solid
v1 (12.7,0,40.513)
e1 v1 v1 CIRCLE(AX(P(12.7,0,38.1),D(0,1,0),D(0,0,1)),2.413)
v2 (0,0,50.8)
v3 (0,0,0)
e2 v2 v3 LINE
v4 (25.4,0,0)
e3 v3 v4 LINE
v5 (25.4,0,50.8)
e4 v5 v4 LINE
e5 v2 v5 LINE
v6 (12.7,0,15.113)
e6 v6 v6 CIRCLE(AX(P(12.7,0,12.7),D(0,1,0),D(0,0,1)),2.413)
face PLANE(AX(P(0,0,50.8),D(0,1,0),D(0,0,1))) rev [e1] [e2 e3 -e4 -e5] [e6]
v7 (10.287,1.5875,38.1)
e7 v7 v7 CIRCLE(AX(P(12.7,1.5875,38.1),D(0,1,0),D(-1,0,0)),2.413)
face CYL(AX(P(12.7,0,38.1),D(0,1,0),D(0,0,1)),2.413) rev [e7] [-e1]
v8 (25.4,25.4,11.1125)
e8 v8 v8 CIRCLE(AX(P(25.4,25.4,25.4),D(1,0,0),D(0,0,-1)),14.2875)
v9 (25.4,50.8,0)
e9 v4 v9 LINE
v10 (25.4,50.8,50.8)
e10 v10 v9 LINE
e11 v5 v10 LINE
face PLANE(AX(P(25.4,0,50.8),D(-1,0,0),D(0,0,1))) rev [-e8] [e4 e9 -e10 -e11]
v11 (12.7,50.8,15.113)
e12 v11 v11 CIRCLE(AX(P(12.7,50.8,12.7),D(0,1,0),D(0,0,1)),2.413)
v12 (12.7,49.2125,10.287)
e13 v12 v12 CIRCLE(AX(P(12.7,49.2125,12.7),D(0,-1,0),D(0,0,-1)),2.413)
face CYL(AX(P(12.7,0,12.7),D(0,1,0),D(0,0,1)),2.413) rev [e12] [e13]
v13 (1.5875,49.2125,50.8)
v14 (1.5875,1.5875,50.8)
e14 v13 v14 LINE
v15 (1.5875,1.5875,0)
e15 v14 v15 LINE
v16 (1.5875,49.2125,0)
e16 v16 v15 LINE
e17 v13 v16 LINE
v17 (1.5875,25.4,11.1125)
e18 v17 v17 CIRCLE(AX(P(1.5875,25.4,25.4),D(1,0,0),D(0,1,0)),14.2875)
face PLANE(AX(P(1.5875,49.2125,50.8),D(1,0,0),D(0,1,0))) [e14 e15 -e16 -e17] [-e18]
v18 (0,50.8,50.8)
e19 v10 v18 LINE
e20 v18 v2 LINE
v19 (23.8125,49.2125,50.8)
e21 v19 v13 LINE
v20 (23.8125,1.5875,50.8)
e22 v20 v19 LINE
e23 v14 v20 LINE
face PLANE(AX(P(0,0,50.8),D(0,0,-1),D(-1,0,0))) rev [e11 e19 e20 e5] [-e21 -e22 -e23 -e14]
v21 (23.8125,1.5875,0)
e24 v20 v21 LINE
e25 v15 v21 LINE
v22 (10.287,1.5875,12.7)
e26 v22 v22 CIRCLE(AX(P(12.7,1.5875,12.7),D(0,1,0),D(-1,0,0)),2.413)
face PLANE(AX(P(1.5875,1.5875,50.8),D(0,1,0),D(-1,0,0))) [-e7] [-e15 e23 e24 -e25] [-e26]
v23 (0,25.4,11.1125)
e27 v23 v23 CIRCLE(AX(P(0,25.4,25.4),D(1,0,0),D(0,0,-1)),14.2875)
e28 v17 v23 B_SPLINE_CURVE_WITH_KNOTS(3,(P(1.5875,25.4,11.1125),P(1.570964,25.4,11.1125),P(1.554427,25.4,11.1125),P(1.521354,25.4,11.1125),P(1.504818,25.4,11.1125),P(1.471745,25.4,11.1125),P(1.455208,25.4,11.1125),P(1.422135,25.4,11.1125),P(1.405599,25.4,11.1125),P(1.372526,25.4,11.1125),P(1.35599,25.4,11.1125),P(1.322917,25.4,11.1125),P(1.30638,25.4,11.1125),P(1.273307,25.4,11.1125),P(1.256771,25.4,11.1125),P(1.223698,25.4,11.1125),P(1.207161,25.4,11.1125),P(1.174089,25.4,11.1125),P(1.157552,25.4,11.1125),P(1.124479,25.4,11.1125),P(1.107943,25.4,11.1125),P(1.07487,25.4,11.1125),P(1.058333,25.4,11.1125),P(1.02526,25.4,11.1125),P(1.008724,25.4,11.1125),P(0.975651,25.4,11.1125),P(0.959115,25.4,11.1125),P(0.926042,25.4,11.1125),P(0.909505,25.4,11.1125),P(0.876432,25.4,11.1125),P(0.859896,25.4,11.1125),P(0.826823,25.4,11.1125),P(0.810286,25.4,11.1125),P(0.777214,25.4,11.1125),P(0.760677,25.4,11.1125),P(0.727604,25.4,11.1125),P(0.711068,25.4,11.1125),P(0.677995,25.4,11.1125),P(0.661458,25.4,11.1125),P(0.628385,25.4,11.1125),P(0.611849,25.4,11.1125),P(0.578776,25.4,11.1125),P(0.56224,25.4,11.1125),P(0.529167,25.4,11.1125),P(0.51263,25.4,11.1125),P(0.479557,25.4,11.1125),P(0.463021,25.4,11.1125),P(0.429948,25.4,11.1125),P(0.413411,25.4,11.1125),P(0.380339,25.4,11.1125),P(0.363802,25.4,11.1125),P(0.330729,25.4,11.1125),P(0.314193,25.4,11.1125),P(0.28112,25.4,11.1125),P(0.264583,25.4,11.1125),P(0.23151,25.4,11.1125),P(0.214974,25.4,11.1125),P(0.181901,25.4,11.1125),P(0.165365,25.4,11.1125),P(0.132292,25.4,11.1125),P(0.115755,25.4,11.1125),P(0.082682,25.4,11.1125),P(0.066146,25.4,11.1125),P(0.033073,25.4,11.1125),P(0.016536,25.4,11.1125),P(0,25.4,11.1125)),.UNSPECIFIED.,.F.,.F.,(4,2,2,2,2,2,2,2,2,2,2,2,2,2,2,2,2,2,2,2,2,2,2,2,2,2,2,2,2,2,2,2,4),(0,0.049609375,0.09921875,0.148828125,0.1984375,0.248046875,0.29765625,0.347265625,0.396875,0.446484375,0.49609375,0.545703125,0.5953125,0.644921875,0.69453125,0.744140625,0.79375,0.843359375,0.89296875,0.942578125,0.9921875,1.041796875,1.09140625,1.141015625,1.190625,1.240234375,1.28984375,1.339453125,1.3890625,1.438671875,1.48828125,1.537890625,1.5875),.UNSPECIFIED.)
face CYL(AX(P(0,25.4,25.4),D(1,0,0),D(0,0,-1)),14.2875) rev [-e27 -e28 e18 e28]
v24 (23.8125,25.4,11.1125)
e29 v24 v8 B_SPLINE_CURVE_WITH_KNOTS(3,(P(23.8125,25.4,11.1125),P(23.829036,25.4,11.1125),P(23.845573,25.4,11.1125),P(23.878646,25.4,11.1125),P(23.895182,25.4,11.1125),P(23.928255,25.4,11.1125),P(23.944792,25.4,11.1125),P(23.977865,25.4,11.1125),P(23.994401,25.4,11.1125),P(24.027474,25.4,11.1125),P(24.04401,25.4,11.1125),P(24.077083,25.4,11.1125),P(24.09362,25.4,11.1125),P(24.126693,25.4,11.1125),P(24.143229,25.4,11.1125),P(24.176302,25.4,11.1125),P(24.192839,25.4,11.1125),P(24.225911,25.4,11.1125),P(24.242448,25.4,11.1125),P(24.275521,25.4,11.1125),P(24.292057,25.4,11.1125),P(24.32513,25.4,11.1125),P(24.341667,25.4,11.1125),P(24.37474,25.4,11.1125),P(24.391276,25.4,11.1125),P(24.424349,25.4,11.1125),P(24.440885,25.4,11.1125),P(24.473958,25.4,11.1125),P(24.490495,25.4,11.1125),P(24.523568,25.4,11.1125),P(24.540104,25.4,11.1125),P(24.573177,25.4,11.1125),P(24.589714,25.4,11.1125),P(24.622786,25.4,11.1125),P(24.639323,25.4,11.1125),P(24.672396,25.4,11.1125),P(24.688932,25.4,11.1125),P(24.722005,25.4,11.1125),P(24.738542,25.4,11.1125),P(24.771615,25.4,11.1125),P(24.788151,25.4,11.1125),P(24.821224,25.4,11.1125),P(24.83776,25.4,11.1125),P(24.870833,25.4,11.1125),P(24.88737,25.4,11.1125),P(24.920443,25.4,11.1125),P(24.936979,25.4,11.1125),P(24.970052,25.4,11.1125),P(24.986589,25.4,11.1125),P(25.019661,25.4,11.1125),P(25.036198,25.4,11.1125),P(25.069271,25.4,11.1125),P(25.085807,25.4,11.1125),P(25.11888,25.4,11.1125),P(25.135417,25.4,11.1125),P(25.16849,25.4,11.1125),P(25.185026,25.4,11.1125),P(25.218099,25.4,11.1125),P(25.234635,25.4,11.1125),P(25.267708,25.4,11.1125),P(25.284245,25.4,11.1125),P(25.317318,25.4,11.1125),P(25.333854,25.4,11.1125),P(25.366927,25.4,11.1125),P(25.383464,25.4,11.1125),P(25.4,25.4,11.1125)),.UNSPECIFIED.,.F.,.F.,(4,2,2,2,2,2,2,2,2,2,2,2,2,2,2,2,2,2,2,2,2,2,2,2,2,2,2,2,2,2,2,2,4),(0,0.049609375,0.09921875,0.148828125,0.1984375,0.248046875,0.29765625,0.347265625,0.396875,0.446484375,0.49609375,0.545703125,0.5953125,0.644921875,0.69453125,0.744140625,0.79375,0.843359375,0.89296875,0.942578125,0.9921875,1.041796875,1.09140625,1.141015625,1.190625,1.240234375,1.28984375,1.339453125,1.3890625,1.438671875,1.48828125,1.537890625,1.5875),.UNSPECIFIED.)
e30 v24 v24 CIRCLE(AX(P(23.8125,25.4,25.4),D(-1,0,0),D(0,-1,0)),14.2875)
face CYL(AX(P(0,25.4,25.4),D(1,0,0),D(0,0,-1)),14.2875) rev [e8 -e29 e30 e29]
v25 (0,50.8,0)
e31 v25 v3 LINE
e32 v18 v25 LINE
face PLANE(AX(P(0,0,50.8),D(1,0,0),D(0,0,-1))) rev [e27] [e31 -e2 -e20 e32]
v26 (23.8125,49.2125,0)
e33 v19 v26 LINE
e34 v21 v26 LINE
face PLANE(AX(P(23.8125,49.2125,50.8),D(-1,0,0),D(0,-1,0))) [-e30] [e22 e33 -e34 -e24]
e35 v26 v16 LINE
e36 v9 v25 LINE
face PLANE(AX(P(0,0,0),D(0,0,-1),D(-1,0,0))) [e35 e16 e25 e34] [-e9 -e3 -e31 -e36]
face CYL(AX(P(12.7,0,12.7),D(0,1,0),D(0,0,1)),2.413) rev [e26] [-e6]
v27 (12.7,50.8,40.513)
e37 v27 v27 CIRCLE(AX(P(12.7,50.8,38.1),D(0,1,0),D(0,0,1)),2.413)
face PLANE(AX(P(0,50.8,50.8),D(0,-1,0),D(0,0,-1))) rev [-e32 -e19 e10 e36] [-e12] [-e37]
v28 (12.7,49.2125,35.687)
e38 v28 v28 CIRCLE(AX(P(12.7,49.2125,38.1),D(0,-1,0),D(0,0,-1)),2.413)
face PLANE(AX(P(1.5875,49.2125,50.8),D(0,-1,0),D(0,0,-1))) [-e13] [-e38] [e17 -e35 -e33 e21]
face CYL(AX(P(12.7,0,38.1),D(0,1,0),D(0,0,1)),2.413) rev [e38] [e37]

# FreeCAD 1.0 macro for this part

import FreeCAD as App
import Part
import Sketcher
Q = App.Units.Quantity


def add_polygon(sketch, points):
    """Adds a closed chain of lines whose ends are joined by coincident constraints."""
    first, n = sketch.GeometryCount, len(points)
    for a, b in zip(points, points[1:] + points[:1]):
        sketch.addGeometry(Part.LineSegment(App.Vector(*a, 0), App.Vector(*b, 0)), False)
    for i in range(n):
        sketch.addConstraint(Sketcher.Constraint("Coincident", first + i, 2, first + (i + 1) % n, 1))

doc = App.newDocument("Part")
body = doc.addObject("PartDesign::Body", "Body")

# Sketch on XY plane
sketch1 = body.newObject("Sketcher::SketchObject", "Sketch")
sketch1.AttachmentSupport = (doc.getObject("XY_Plane"), [""])
sketch1.MapMode = "FlatFace"
add_polygon(sketch1, [(0, 50.8), (0, 0), (25.4, 0), (25.4, 50.8)])  # lines 0-3
add_polygon(sketch1, [(23.8125, 1.5875), (1.5875, 1.5875), (1.5875, 49.2125), (23.8125, 49.2125)])  # lines 4-7
sketch1.addConstraint(Sketcher.Constraint("Vertical", 0))
sketch1.addConstraint(Sketcher.Constraint("Horizontal", 1))
sketch1.addConstraint(Sketcher.Constraint("Vertical", 2))
sketch1.addConstraint(Sketcher.Constraint("Horizontal", 3))
sketch1.addConstraint(Sketcher.Constraint("Horizontal", 4))
sketch1.addConstraint(Sketcher.Constraint("Vertical", 5))
sketch1.addConstraint(Sketcher.Constraint("Horizontal", 6))
sketch1.addConstraint(Sketcher.Constraint("Vertical", 7))
sketch1.addConstraint(Sketcher.Constraint("Coincident", 0, 2, -1, 1))
sketch1.addConstraint(Sketcher.Constraint("DistanceX", 1, 1, 1, 2, Q("1 in")))
sketch1.addConstraint(Sketcher.Constraint("DistanceY", 0, 2, 0, 1, Q("2 in")))
sketch1.addConstraint(Sketcher.Constraint("DistanceX", 4, 2, 4, 1, Q("0.875 in")))
sketch1.addConstraint(Sketcher.Constraint("DistanceY", 5, 1, 5, 2, Q("1.875 in")))
sketch1.addConstraint(Sketcher.Constraint("DistanceX", -1, 1, 4, 2, Q("0.0625 in")))
sketch1.addConstraint(Sketcher.Constraint("DistanceY", -1, 1, 4, 2, Q("0.0625 in")))
pad1 = body.newObject("PartDesign::Pad", "Pad")
pad1.Profile = sketch1
pad1.Length = Q("2 in")

# Sketch on XZ plane
sketch2 = body.newObject("Sketcher::SketchObject", "Sketch001")
sketch2.AttachmentSupport = (doc.getObject("XZ_Plane"), [""])
sketch2.MapMode = "FlatFace"
sketch2.AttachmentOffset = App.Placement(App.Vector(0, 0, -2 * 25.4), App.Rotation())
sketch2.addGeometry(Part.Circle(App.Vector(12.7, 12.7, 0), App.Vector(0, 0, 1), 2.413), False)
sketch2.addGeometry(Part.Circle(App.Vector(12.7, 38.1, 0), App.Vector(0, 0, 1), 2.413), False)
sketch2.addConstraint(Sketcher.Constraint("Equal", 0, 1))
sketch2.addConstraint(Sketcher.Constraint("Vertical", 0, 3, 1, 3))
sketch2.addConstraint(Sketcher.Constraint("Diameter", 0, Q("0.19 in")))
sketch2.addConstraint(Sketcher.Constraint("DistanceY", 0, 3, 1, 3, Q("1 in")))
sketch2.addConstraint(Sketcher.Constraint("DistanceX", -1, 1, 0, 3, Q("0.5 in")))
sketch2.addConstraint(Sketcher.Constraint("DistanceY", -1, 1, 0, 3, Q("0.5 in")))
pocket1 = body.newObject("PartDesign::Pocket", "Pocket")
pocket1.Profile = sketch2
pocket1.Type = "ThroughAll"
pocket1.Reversed = True

# Sketch on YZ plane
sketch3 = body.newObject("Sketcher::SketchObject", "Sketch002")
sketch3.AttachmentSupport = (doc.getObject("YZ_Plane"), [""])
sketch3.MapMode = "FlatFace"
sketch3.AttachmentOffset = App.Placement(App.Vector(0, 0, 1 * 25.4), App.Rotation())
sketch3.addGeometry(Part.Circle(App.Vector(25.4, 25.4, 0), App.Vector(0, 0, 1), 14.2875), False)
sketch3.addConstraint(Sketcher.Constraint("Diameter", 0, Q("1.125 in")))
sketch3.addConstraint(Sketcher.Constraint("DistanceX", -1, 1, 0, 3, Q("1 in")))
sketch3.addConstraint(Sketcher.Constraint("DistanceY", -1, 1, 0, 3, Q("1 in")))
pocket2 = body.newObject("PartDesign::Pocket", "Pocket001")
pocket2.Profile = sketch3
pocket2.Type = "ThroughAll"

doc.recompute()
